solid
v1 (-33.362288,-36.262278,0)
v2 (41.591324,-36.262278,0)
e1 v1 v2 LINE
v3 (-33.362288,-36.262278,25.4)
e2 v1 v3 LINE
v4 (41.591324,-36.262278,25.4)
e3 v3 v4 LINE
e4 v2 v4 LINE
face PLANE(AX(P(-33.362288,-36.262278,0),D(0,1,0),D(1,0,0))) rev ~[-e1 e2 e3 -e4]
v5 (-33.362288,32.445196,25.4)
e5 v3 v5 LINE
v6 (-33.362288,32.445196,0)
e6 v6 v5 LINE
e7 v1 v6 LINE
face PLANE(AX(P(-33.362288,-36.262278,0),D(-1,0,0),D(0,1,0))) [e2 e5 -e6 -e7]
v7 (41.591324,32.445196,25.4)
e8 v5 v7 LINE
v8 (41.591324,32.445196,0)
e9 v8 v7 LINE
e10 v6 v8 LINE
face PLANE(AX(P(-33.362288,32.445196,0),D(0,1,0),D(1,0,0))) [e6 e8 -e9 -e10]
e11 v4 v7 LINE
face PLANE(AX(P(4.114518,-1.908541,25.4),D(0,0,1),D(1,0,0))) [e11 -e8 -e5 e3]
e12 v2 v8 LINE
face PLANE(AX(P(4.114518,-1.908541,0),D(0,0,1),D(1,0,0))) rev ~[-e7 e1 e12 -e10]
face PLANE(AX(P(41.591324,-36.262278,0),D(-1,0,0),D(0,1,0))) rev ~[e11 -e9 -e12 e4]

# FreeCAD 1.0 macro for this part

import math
import FreeCAD as App
import Part
import Sketcher

V = App.Vector
Q = App.Units.Quantity

doc = App.newDocument("Part")
body = doc.addObject("PartDesign::Body", "Body")

sketch1 = body.newObject("Sketcher::SketchObject", "Sketch")
sketch1.AttachmentSupport = (doc.getObject("XY_Plane"), [""])
sketch1.MapMode = "FlatFace"
sketch1.addGeometry(Part.LineSegment(V(-33.362288, 32.445196, 0), V(-33.362288, -36.262278, 0)), False)
sketch1.addGeometry(Part.LineSegment(V(-33.362288, -36.262278, 0), V(41.591324, -36.262278, 0)), False)
sketch1.addGeometry(Part.LineSegment(V(41.591324, -36.262278, 0), V(41.591324, 32.445196, 0)), False)
sketch1.addGeometry(Part.LineSegment(V(41.591324, 32.445196, 0), V(-33.362288, 32.445196, 0)), False)
sketch1.addConstraint(Sketcher.Constraint("Coincident", 0, 2, 1, 1))
sketch1.addConstraint(Sketcher.Constraint("Coincident", 1, 2, 2, 1))
sketch1.addConstraint(Sketcher.Constraint("Coincident", 2, 2, 3, 1))
sketch1.addConstraint(Sketcher.Constraint("Coincident", 3, 2, 0, 1))
sketch1.addConstraint(Sketcher.Constraint("Vertical", 0))
sketch1.addConstraint(Sketcher.Constraint("Horizontal", 1))
sketch1.addConstraint(Sketcher.Constraint("Vertical", 2))
sketch1.addConstraint(Sketcher.Constraint("Horizontal", 3))
sketch1.addConstraint(Sketcher.Constraint("DistanceX", 1, 1, 1, 2, Q("74.953612 mm")))
sketch1.addConstraint(Sketcher.Constraint("DistanceY", 0, 2, 0, 1, Q("68.707474 mm")))
sketch1.addConstraint(Sketcher.Constraint("DistanceY", 0, 2, -1, 1, Q("36.262278 mm")))
sketch1.addConstraint(Sketcher.Constraint("DistanceX", 0, 2, -1, 1, Q("33.362288 mm")))
pad1 = body.newObject("PartDesign::Pad", "Pad")
pad1.Profile = sketch1
pad1.Length = Q("1 in")

sketch2 = body.newObject("Sketcher::SketchObject", "Sketch001")
sketch2.AttachmentSupport = (doc.getObject("XY_Plane"), [""])
sketch2.MapMode = "FlatFace"
sketch2.addGeometry(Part.ArcOfCircle(Part.Circle(V(8.344717, 78.020625, 0), V(0, 0, 1), 71.706796), math.radians(-118.776277), math.radians(-73.630619)), False)
sketch2.addGeometry(Part.ArcOfCircle(Part.Circle(V(-4.059144, -36.09489, 0), V(0, 0, 1), 55.830853), math.radians(54.257915), math.radians(113.335189)), False)
sketch2.addConstraint(Sketcher.Constraint("Coincident", 0, 1, 1, 2))
sketch2.addConstraint(Sketcher.Constraint("Coincident", 1, 1, 0, 2))
sketch2.addConstraint(Sketcher.Constraint("Radius", 0, Q("71.706796 mm")))
sketch2.addConstraint(Sketcher.Constraint("Radius", 1, Q("55.830853 mm")))
sketch2.addConstraint(Sketcher.Constraint("DistanceY", 1, 1, 0, 1, Q("5.948699 mm")))
sketch2.addConstraint(Sketcher.Constraint("DistanceY", 1, 3, -1, 1, Q("36.09489 mm")))
sketch2.addConstraint(Sketcher.Constraint("DistanceX", 1, 3, 0, 3, Q("12.403861 mm")))
sketch2.addConstraint(Sketcher.Constraint("DistanceX", -1, 1, 0, 3, Q("8.344717 mm")))
pocket1 = body.newObject("PartDesign::Pocket", "Pocket")
pocket1.Profile = sketch2
pocket1.Length = Q("1 in")

sketch3 = body.newObject("Sketcher::SketchObject", "Sketch002")
sketch3.AttachmentSupport = (doc.getObject("XY_Plane"), [""])
sketch3.MapMode = "FlatFace"
sketch3.addGeometry(Part.LineSegment(V(-5.488566, 3.637098, 0), V(-12.357531, 26.304687, 0)), False)
sketch3.addGeometry(Part.LineSegment(V(-12.357531, 26.304687, 0), V(-28.553756, 9.022194, 0)), False)
sketch3.addGeometry(Part.LineSegment(V(-28.553756, 9.022194, 0), V(-5.488566, 3.637098, 0)), False)
sketch3.addConstraint(Sketcher.Constraint("Coincident", 0, 2, 1, 1))
sketch3.addConstraint(Sketcher.Constraint("Coincident", 1, 2, 2, 1))
sketch3.addConstraint(Sketcher.Constraint("Coincident", 2, 2, 0, 1))
sketch3.addConstraint(Sketcher.Constraint("Equal", 0, 1))
sketch3.addConstraint(Sketcher.Constraint("Equal", 1, 2))
sketch3.addConstraint(Sketcher.Constraint("DistanceX", 0, 2, -1, 1, Q("12.357531 mm")))
sketch3.addConstraint(Sketcher.Constraint("DistanceX", 1, 2, 2, 2, Q("23.06519 mm")))
sketch3.addConstraint(Sketcher.Constraint("DistanceY", 2, 2, 0, 2, Q("22.667589 mm")))
sketch3.addConstraint(Sketcher.Constraint("DistanceY", -1, 1, 0, 2, Q("26.304687 mm")))
pad2 = body.newObject("PartDesign::Pad", "Pad001")
pad2.Profile = sketch3
pad2.Length = Q("1 in")

sketch4 = body.newObject("Sketcher::SketchObject", "Sketch003")
sketch4.AttachmentSupport = (doc.getObject("XY_Plane"), [""])
sketch4.MapMode = "FlatFace"
sketch4.addGeometry(Part.Circle(V(-17.846096, 15.169183, 0), V(0, 0, 1), 11.148412), False)
sketch4.addConstraint(Sketcher.Constraint("Diameter", 0, Q("22.296824 mm")))
sketch4.addConstraint(Sketcher.Constraint("DistanceX", 0, 3, -1, 1, Q("17.846096 mm")))
sketch4.addConstraint(Sketcher.Constraint("DistanceY", -1, 1, 0, 3, Q("15.169183 mm")))
pocket2 = body.newObject("PartDesign::Pocket", "Pocket001")
pocket2.Profile = sketch4
pocket2.Length = Q("1 in")

doc.recompute()
